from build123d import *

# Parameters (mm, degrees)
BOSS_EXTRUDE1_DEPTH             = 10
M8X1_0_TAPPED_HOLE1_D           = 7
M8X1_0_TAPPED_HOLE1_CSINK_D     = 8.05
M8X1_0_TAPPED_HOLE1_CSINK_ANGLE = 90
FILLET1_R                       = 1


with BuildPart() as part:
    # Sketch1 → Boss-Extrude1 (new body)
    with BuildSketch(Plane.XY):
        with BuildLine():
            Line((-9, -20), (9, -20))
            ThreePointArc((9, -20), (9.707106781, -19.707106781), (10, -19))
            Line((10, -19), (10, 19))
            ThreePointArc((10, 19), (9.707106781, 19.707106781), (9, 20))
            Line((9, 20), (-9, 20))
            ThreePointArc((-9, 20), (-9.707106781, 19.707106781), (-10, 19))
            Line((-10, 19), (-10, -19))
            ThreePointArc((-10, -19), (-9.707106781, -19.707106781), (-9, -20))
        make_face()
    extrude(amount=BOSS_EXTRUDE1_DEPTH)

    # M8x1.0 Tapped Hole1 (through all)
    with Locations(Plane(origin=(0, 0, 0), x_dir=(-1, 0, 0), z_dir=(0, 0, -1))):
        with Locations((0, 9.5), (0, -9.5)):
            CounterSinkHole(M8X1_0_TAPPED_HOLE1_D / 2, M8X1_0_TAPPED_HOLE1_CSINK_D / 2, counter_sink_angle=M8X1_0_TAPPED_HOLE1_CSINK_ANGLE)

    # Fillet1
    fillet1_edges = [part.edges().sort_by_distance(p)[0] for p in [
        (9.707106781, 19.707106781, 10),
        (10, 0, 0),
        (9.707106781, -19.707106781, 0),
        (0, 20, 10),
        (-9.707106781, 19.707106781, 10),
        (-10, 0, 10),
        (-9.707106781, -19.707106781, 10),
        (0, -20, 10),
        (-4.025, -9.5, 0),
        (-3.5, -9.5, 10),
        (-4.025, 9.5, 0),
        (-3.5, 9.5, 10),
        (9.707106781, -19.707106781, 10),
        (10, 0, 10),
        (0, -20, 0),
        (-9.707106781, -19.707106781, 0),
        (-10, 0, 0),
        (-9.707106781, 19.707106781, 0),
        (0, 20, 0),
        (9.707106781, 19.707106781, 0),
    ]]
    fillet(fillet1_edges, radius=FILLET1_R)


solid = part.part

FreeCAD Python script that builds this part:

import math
import FreeCAD as App
import Part
import Sketcher


def edges_at(feature, points):
    """Names of the edges that pass closest to the given points."""
    edges = feature.Shape.Edges
    near = lambda p: min(range(len(edges)), key=lambda i: edges[i].distToShape(Part.Vertex(*p))[0])
    return sorted({f"Edge{near(p) + 1}" for p in points})

doc = App.newDocument("Part")
params = doc.addObject("Spreadsheet::Sheet", "Params")
for row, (alias, value) in enumerate([
    ("sketch1_radius", "1 mm"),
    ("sketch1_width", "18 mm"),
    ("sketch1_height", "38 mm"),
    ("pad1_length", "10 mm"),
    ("sketch2_diameter", "7 mm"),
    ("hole_diameter", "7 mm"),
    ("hole_csink_diameter", "8.05 mm"),
    ("fillet_radius", "1 mm"),
], start=1):
    params.set(f"A{row}", alias)
    params.set(f"B{row}", "=" + value)
    params.setAlias(f"B{row}", alias)

body = doc.addObject("PartDesign::Body", "Body")

sketch1 = body.newObject("Sketcher::SketchObject", "Sketch")
sketch1.AttachmentSupport = (doc.getObject("XY_Plane"), [""])
sketch1.MapMode = "FlatFace"
sketch1.addGeometry([
    Part.LineSegment(App.Vector(-9, -20, 0), App.Vector(9, -20, 0)),
    Part.ArcOfCircle(Part.Circle(App.Vector(9, -19, 0), App.Vector(0, 0, 1), 1), math.radians(-90), math.radians(0)),
    Part.LineSegment(App.Vector(10, -19, 0), App.Vector(10, 19, 0)),
    Part.ArcOfCircle(Part.Circle(App.Vector(9, 19, 0), App.Vector(0, 0, 1), 1), math.radians(0), math.radians(90)),
    Part.LineSegment(App.Vector(9, 20, 0), App.Vector(-9, 20, 0)),
    Part.ArcOfCircle(Part.Circle(App.Vector(-9, 19, 0), App.Vector(0, 0, 1), 1), math.radians(90), math.radians(180)),
    Part.LineSegment(App.Vector(-10, 19, 0), App.Vector(-10, -19, 0)),
    Part.ArcOfCircle(Part.Circle(App.Vector(-9, -19, 0), App.Vector(0, 0, 1), 1), math.radians(-180), math.radians(-90)),
], False)
sketch1.addConstraint([
    Sketcher.Constraint("Tangent", 0, 2, 1, 1),
    Sketcher.Constraint("Tangent", 1, 2, 2, 1),
    Sketcher.Constraint("Tangent", 2, 2, 3, 1),
    Sketcher.Constraint("Tangent", 3, 2, 4, 1),
    Sketcher.Constraint("Tangent", 4, 2, 5, 1),
    Sketcher.Constraint("Tangent", 5, 2, 6, 1),
    Sketcher.Constraint("Tangent", 6, 2, 7, 1),
    Sketcher.Constraint("Tangent", 7, 2, 0, 1),
    Sketcher.Constraint("Horizontal", 0),
    Sketcher.Constraint("Vertical", 2),
    Sketcher.Constraint("Horizontal", 4),
    Sketcher.Constraint("Vertical", 6),
    Sketcher.Constraint("Equal", 1, 3),
    Sketcher.Constraint("Equal", 3, 5),
    Sketcher.Constraint("Equal", 5, 7),
    Sketcher.Constraint("Symmetric", 1, 3, 5, 3, -1, 1),
    Sketcher.Constraint("Radius", 1, 1.0),
    Sketcher.Constraint("DistanceX", 0, 1, 0, 2, 18.0),
    Sketcher.Constraint("DistanceY", 2, 1, 2, 2, 38.0),
])
sketch1.setExpression("Constraints[16]", "Params.sketch1_radius")
sketch1.setExpression("Constraints[17]", "Params.sketch1_width")
sketch1.setExpression("Constraints[18]", "Params.sketch1_height")
pad1 = body.newObject("PartDesign::Pad", "Pad")
pad1.Profile = sketch1
pad1.setExpression("Length", "Params.pad1_length")

sketch2 = body.newObject("Sketcher::SketchObject", "Sketch001")
sketch2.AttachmentSupport = (doc.getObject("XY_Plane"), [""])
sketch2.MapMode = "FlatFace"
sketch2.addGeometry([
    Part.Circle(App.Vector(0, 9.5, 0), App.Vector(0, 0, 1), 3.5),
    Part.Circle(App.Vector(0, -9.5, 0), App.Vector(0, 0, 1), 3.5),
], False)
sketch2.addConstraint([
    Sketcher.Constraint("Equal", 0, 1),
    Sketcher.Constraint("Symmetric", 0, 3, 1, 3, -1, 1),
    Sketcher.Constraint("PointOnObject", 0, 3, -2),
    Sketcher.Constraint("Diameter", 0, 7.0),
    Sketcher.Constraint("DistanceY", 1, 3, 0, 3, 19.0),
])
sketch2.setExpression("Constraints[3]", "Params.sketch2_diameter")
doc.recompute()
hole = body.newObject("PartDesign::Hole", "Hole")
hole.Profile = sketch2
hole.ThreadType = "None"
hole.setExpression("Diameter", "Params.hole_diameter")
hole.DepthType = "ThroughAll"
hole.HoleCutType = "Countersink"
hole.setExpression("HoleCutDiameter", "Params.hole_csink_diameter")
hole.HoleCutCountersinkAngle = 90
hole.Reversed = True
doc.recompute()

fillet = body.newObject("PartDesign::Fillet", "Fillet")
fillet.Base = (hole, edges_at(hole, [
    (9.707, 19.707, 10),
    (10, 0, 0),
    (9.707, -19.707, 0),
    (0, 20, 10),
    (-9.707, 19.707, 10),
    (-10, 0, 10),
    (-9.707, -19.707, 10),
    (0, -20, 10),
    (-4.025, -9.5, 0),
    (-3.5, -9.5, 10),
    (-4.025, 9.5, 0),
    (-3.5, 9.5, 10),
    (9.707, -19.707, 10),
    (10, 0, 10),
    (0, -20, 0),
    (-9.707, -19.707, 0),
    (-10, 0, 0),
    (-9.707, 19.707, 0),
    (0, 20, 0),
    (9.707, 19.707, 0),
]))
fillet.setExpression("Radius", "Params.fillet_radius")

doc.recompute()
